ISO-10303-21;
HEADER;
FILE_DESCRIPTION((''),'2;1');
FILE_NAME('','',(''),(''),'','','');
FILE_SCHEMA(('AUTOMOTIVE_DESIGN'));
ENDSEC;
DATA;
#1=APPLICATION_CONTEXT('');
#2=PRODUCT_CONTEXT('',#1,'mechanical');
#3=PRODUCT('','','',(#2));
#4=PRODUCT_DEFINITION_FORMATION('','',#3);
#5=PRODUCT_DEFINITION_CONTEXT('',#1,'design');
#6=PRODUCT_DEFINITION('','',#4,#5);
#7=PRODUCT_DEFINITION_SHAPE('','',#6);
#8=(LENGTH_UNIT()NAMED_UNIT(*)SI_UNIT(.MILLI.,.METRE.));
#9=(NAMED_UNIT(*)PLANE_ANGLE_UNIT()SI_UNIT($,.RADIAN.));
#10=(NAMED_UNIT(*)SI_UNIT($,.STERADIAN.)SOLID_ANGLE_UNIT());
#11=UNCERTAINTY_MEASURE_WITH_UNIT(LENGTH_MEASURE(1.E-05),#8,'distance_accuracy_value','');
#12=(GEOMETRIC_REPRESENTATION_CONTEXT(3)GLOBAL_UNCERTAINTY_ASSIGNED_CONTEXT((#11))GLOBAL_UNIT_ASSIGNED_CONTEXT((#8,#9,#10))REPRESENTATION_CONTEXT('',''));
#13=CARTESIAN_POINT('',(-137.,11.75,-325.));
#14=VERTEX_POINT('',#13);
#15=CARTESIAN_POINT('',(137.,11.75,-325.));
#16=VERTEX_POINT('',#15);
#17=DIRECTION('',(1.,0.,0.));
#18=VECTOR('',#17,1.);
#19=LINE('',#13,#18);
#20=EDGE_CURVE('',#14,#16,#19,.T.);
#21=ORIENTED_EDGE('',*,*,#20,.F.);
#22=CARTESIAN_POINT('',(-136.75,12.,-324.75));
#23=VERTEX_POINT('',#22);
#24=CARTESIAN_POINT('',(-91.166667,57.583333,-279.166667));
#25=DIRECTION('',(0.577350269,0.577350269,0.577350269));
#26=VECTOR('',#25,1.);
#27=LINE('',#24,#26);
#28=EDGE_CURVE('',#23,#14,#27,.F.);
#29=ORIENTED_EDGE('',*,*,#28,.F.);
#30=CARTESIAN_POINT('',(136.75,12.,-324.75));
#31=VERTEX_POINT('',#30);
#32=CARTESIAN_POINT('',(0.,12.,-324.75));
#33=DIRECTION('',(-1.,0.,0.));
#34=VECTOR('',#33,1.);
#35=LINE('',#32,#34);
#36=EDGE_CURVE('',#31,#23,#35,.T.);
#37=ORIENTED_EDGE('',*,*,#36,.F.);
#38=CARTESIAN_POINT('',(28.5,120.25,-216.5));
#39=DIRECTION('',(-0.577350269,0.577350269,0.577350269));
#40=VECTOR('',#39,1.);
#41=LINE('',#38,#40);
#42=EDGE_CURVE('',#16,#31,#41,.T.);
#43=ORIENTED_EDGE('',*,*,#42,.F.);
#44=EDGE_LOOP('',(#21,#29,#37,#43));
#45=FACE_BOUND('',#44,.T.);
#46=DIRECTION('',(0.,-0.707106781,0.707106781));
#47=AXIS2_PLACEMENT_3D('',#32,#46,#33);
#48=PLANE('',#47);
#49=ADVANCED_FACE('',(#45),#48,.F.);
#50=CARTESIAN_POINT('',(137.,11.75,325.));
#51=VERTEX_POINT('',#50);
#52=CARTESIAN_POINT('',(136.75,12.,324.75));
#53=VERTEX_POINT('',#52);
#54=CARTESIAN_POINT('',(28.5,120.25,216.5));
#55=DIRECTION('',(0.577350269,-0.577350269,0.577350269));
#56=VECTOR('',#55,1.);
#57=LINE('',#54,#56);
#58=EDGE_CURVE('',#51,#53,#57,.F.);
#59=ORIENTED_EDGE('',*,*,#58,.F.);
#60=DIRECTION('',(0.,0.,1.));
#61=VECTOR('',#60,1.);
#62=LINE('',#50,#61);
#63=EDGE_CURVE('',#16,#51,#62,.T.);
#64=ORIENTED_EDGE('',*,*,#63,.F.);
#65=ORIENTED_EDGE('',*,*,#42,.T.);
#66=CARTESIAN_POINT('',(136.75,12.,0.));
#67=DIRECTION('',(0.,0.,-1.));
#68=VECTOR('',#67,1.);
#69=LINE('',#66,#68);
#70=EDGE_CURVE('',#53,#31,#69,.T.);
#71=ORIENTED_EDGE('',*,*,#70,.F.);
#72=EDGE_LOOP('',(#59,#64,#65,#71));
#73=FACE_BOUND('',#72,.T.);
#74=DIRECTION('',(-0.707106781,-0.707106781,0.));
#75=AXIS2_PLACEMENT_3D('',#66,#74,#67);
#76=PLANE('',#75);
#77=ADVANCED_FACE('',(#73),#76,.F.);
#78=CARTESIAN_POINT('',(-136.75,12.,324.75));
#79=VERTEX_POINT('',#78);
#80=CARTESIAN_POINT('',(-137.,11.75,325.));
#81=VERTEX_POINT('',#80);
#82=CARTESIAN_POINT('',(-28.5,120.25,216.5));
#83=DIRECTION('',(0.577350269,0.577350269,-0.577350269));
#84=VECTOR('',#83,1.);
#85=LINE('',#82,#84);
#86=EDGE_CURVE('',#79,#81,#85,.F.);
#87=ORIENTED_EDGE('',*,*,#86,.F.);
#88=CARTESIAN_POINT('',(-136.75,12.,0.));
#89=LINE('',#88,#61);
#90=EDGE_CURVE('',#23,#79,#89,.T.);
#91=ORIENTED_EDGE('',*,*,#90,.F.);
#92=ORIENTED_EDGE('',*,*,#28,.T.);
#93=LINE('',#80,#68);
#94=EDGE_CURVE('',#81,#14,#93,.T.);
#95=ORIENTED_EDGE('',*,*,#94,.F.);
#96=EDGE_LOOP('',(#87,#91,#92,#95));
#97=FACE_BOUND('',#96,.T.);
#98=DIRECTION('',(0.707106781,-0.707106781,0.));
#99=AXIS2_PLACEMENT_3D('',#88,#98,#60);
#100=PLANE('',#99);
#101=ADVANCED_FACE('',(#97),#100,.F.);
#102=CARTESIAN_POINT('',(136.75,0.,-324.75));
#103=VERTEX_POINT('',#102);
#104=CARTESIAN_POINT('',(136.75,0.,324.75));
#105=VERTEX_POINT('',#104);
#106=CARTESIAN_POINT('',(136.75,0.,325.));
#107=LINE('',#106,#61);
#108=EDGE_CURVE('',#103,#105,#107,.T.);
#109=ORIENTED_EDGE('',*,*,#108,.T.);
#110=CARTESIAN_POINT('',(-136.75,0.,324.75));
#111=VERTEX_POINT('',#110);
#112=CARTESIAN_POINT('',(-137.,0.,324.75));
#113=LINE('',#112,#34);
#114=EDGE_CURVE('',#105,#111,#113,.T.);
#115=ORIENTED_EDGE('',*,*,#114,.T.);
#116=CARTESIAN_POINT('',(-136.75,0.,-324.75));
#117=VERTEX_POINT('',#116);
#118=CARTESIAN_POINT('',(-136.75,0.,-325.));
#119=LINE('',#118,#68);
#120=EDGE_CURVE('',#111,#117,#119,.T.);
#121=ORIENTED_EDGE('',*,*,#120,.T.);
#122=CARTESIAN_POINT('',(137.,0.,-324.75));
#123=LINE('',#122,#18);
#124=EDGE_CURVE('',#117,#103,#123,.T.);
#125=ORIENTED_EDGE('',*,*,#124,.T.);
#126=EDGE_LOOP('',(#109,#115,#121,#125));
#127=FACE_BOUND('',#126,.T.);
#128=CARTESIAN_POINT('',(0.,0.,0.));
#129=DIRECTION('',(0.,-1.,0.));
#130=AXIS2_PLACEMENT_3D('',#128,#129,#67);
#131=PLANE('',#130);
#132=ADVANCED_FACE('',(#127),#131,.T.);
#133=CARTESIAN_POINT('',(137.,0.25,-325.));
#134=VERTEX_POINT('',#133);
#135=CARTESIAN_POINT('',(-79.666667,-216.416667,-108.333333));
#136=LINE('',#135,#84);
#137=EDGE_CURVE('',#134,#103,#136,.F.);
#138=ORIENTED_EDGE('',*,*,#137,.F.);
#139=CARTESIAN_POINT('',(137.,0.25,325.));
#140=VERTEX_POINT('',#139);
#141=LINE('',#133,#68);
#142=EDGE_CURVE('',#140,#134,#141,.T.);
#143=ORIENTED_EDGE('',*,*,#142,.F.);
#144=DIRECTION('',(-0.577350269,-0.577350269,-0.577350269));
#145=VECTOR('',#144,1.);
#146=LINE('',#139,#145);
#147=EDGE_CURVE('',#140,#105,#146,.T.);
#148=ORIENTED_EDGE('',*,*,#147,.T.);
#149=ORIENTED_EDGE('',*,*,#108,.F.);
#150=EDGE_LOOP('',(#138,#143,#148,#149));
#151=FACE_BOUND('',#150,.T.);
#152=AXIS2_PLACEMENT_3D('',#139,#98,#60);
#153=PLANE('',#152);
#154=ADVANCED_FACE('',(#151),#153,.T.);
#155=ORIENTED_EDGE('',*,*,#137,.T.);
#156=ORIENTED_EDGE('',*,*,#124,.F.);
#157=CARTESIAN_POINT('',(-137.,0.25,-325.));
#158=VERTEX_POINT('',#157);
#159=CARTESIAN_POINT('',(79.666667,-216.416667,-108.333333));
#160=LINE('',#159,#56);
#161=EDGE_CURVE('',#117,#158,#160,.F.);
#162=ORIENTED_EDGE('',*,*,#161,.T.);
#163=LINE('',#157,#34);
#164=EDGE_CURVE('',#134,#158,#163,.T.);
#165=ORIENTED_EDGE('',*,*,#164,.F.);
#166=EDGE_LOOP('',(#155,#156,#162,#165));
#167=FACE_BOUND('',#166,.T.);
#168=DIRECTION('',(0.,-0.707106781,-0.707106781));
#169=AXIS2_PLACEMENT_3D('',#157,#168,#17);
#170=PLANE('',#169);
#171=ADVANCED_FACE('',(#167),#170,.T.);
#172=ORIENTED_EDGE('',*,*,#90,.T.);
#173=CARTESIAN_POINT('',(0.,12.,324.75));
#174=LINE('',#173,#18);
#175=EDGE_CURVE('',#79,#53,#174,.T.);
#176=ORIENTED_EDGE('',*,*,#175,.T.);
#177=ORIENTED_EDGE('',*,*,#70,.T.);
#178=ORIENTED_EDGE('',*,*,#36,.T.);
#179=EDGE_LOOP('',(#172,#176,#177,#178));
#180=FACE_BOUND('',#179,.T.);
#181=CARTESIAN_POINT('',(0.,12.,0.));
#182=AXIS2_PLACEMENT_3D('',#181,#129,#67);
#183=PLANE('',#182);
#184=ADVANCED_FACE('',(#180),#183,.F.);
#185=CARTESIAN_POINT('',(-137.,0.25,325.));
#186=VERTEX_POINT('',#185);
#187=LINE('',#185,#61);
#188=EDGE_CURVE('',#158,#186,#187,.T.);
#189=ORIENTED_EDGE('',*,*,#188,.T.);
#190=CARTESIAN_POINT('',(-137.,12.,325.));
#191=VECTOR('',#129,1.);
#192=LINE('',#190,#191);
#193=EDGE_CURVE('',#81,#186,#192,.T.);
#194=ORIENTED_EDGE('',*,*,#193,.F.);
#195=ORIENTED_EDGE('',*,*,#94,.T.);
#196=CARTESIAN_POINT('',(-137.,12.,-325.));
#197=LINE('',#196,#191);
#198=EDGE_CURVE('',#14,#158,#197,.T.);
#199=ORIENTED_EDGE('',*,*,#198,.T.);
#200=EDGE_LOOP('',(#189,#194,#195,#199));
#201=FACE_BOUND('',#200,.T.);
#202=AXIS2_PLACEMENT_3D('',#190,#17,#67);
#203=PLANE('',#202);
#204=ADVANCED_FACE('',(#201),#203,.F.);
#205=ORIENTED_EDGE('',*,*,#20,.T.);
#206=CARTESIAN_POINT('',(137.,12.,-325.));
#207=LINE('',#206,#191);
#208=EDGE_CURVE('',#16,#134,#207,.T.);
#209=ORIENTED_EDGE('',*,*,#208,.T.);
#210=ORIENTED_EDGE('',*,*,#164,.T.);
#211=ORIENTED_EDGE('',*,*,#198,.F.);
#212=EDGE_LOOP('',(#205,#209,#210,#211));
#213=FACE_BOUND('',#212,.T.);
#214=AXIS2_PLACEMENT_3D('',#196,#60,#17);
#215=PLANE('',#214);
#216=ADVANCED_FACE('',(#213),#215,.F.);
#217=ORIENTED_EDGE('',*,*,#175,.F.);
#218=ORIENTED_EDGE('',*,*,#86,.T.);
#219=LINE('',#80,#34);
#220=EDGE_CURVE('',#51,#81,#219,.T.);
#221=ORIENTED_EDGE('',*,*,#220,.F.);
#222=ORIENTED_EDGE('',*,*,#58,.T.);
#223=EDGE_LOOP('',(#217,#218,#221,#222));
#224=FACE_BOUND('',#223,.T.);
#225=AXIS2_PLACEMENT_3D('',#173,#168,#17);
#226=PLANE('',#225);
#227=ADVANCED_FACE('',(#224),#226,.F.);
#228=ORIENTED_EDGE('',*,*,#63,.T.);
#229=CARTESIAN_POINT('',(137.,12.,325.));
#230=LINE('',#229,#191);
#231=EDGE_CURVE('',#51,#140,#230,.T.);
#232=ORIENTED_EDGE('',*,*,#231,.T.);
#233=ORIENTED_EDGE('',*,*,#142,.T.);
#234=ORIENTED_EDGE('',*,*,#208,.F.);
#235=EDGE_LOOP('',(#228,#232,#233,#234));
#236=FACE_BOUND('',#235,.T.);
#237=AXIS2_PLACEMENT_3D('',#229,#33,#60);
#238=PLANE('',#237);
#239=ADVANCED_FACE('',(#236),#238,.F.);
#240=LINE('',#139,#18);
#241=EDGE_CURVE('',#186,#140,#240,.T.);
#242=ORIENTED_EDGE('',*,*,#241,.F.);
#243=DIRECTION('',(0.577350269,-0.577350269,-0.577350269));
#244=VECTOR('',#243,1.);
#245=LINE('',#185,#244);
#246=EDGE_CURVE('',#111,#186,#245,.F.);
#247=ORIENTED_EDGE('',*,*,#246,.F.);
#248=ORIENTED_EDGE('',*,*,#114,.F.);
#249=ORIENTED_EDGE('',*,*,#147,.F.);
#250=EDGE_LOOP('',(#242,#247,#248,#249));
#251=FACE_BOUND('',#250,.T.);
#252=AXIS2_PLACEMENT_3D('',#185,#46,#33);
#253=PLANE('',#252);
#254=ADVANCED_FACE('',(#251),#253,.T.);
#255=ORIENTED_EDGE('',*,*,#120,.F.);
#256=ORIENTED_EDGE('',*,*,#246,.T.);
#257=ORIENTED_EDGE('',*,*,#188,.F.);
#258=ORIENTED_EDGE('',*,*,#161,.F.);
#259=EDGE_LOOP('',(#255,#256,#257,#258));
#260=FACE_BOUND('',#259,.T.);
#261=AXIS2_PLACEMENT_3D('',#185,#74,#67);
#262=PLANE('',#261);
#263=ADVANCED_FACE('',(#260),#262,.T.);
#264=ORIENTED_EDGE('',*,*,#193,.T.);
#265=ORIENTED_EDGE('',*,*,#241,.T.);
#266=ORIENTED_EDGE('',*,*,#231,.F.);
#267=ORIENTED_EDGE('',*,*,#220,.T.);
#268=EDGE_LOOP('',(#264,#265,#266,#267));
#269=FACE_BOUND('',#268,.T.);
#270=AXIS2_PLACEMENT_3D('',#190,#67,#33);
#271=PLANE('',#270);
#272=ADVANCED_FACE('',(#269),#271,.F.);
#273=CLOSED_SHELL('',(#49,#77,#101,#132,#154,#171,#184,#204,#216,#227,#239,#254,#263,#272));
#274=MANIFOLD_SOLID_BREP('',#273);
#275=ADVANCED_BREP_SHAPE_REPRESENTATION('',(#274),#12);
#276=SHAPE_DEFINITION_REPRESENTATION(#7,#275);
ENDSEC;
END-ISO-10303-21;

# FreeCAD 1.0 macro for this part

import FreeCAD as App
import Part
import Sketcher


def edges_at(feature, points):
    """Names of the edges that pass closest to the given points."""
    edges = feature.Shape.Edges
    near = lambda p: min(range(len(edges)), key=lambda i: edges[i].distToShape(Part.Vertex(*p))[0])
    return sorted({f"Edge{near(p) + 1}" for p in points})

doc = App.newDocument("Part")
body = doc.addObject("PartDesign::Body", "Body")

# Sketch on XZ plane
sketch1 = doc.addObject("Sketcher::SketchObject", "Sketch")
body.addObject(sketch1)
sketch1.AttachmentSupport = (doc.XZ_Plane, [""])
sketch1.MapMode = "FlatFace"
sketch1.addGeometry([
    Part.LineSegment(App.Vector(-137, -325, 0), App.Vector(-137, 325, 0)),
    Part.LineSegment(App.Vector(-137, 325, 0), App.Vector(137, 325, 0)),
    Part.LineSegment(App.Vector(137, 325, 0), App.Vector(137, -325, 0)),
    Part.LineSegment(App.Vector(137, -325, 0), App.Vector(-137, -325, 0)),
], False)
sketch1.addConstraint([
    Sketcher.Constraint("Coincident", 0, 2, 1, 1),
    Sketcher.Constraint("Coincident", 1, 2, 2, 1),
    Sketcher.Constraint("Coincident", 2, 2, 3, 1),
    Sketcher.Constraint("Coincident", 3, 2, 0, 1),
    Sketcher.Constraint("Vertical", 0),
    Sketcher.Constraint("Horizontal", 1),
    Sketcher.Constraint("Vertical", 2),
    Sketcher.Constraint("Horizontal", 3),
    Sketcher.Constraint("Symmetric", 0, 2, 2, 2, -1, 1),
    Sketcher.Constraint("DistanceX", 1, 1, 1, 2, 274.0),
    Sketcher.Constraint("DistanceY", 0, 1, 0, 2, 650.0),
])
pad1 = doc.addObject("PartDesign::Pad", "Pad")
body.addObject(pad1)
pad1.Profile = sketch1
pad1.Length = 12
pad1.Reversed = True
doc.recompute()

chamfer = doc.addObject("PartDesign::Chamfer", "Chamfer")
body.addObject(chamfer)
chamfer.Base = (pad1, edges_at(pad1, [
    (-137, 12, 0),
    (0, 12, 325),
    (137, 12, 0),
    (0, 0, 325),
    (-137, 0, 0),
    (0, 0, -325),
    (137, 0, 0),
    (0, 12, -325),
]))
chamfer.Size = 0.25

doc.recompute()
